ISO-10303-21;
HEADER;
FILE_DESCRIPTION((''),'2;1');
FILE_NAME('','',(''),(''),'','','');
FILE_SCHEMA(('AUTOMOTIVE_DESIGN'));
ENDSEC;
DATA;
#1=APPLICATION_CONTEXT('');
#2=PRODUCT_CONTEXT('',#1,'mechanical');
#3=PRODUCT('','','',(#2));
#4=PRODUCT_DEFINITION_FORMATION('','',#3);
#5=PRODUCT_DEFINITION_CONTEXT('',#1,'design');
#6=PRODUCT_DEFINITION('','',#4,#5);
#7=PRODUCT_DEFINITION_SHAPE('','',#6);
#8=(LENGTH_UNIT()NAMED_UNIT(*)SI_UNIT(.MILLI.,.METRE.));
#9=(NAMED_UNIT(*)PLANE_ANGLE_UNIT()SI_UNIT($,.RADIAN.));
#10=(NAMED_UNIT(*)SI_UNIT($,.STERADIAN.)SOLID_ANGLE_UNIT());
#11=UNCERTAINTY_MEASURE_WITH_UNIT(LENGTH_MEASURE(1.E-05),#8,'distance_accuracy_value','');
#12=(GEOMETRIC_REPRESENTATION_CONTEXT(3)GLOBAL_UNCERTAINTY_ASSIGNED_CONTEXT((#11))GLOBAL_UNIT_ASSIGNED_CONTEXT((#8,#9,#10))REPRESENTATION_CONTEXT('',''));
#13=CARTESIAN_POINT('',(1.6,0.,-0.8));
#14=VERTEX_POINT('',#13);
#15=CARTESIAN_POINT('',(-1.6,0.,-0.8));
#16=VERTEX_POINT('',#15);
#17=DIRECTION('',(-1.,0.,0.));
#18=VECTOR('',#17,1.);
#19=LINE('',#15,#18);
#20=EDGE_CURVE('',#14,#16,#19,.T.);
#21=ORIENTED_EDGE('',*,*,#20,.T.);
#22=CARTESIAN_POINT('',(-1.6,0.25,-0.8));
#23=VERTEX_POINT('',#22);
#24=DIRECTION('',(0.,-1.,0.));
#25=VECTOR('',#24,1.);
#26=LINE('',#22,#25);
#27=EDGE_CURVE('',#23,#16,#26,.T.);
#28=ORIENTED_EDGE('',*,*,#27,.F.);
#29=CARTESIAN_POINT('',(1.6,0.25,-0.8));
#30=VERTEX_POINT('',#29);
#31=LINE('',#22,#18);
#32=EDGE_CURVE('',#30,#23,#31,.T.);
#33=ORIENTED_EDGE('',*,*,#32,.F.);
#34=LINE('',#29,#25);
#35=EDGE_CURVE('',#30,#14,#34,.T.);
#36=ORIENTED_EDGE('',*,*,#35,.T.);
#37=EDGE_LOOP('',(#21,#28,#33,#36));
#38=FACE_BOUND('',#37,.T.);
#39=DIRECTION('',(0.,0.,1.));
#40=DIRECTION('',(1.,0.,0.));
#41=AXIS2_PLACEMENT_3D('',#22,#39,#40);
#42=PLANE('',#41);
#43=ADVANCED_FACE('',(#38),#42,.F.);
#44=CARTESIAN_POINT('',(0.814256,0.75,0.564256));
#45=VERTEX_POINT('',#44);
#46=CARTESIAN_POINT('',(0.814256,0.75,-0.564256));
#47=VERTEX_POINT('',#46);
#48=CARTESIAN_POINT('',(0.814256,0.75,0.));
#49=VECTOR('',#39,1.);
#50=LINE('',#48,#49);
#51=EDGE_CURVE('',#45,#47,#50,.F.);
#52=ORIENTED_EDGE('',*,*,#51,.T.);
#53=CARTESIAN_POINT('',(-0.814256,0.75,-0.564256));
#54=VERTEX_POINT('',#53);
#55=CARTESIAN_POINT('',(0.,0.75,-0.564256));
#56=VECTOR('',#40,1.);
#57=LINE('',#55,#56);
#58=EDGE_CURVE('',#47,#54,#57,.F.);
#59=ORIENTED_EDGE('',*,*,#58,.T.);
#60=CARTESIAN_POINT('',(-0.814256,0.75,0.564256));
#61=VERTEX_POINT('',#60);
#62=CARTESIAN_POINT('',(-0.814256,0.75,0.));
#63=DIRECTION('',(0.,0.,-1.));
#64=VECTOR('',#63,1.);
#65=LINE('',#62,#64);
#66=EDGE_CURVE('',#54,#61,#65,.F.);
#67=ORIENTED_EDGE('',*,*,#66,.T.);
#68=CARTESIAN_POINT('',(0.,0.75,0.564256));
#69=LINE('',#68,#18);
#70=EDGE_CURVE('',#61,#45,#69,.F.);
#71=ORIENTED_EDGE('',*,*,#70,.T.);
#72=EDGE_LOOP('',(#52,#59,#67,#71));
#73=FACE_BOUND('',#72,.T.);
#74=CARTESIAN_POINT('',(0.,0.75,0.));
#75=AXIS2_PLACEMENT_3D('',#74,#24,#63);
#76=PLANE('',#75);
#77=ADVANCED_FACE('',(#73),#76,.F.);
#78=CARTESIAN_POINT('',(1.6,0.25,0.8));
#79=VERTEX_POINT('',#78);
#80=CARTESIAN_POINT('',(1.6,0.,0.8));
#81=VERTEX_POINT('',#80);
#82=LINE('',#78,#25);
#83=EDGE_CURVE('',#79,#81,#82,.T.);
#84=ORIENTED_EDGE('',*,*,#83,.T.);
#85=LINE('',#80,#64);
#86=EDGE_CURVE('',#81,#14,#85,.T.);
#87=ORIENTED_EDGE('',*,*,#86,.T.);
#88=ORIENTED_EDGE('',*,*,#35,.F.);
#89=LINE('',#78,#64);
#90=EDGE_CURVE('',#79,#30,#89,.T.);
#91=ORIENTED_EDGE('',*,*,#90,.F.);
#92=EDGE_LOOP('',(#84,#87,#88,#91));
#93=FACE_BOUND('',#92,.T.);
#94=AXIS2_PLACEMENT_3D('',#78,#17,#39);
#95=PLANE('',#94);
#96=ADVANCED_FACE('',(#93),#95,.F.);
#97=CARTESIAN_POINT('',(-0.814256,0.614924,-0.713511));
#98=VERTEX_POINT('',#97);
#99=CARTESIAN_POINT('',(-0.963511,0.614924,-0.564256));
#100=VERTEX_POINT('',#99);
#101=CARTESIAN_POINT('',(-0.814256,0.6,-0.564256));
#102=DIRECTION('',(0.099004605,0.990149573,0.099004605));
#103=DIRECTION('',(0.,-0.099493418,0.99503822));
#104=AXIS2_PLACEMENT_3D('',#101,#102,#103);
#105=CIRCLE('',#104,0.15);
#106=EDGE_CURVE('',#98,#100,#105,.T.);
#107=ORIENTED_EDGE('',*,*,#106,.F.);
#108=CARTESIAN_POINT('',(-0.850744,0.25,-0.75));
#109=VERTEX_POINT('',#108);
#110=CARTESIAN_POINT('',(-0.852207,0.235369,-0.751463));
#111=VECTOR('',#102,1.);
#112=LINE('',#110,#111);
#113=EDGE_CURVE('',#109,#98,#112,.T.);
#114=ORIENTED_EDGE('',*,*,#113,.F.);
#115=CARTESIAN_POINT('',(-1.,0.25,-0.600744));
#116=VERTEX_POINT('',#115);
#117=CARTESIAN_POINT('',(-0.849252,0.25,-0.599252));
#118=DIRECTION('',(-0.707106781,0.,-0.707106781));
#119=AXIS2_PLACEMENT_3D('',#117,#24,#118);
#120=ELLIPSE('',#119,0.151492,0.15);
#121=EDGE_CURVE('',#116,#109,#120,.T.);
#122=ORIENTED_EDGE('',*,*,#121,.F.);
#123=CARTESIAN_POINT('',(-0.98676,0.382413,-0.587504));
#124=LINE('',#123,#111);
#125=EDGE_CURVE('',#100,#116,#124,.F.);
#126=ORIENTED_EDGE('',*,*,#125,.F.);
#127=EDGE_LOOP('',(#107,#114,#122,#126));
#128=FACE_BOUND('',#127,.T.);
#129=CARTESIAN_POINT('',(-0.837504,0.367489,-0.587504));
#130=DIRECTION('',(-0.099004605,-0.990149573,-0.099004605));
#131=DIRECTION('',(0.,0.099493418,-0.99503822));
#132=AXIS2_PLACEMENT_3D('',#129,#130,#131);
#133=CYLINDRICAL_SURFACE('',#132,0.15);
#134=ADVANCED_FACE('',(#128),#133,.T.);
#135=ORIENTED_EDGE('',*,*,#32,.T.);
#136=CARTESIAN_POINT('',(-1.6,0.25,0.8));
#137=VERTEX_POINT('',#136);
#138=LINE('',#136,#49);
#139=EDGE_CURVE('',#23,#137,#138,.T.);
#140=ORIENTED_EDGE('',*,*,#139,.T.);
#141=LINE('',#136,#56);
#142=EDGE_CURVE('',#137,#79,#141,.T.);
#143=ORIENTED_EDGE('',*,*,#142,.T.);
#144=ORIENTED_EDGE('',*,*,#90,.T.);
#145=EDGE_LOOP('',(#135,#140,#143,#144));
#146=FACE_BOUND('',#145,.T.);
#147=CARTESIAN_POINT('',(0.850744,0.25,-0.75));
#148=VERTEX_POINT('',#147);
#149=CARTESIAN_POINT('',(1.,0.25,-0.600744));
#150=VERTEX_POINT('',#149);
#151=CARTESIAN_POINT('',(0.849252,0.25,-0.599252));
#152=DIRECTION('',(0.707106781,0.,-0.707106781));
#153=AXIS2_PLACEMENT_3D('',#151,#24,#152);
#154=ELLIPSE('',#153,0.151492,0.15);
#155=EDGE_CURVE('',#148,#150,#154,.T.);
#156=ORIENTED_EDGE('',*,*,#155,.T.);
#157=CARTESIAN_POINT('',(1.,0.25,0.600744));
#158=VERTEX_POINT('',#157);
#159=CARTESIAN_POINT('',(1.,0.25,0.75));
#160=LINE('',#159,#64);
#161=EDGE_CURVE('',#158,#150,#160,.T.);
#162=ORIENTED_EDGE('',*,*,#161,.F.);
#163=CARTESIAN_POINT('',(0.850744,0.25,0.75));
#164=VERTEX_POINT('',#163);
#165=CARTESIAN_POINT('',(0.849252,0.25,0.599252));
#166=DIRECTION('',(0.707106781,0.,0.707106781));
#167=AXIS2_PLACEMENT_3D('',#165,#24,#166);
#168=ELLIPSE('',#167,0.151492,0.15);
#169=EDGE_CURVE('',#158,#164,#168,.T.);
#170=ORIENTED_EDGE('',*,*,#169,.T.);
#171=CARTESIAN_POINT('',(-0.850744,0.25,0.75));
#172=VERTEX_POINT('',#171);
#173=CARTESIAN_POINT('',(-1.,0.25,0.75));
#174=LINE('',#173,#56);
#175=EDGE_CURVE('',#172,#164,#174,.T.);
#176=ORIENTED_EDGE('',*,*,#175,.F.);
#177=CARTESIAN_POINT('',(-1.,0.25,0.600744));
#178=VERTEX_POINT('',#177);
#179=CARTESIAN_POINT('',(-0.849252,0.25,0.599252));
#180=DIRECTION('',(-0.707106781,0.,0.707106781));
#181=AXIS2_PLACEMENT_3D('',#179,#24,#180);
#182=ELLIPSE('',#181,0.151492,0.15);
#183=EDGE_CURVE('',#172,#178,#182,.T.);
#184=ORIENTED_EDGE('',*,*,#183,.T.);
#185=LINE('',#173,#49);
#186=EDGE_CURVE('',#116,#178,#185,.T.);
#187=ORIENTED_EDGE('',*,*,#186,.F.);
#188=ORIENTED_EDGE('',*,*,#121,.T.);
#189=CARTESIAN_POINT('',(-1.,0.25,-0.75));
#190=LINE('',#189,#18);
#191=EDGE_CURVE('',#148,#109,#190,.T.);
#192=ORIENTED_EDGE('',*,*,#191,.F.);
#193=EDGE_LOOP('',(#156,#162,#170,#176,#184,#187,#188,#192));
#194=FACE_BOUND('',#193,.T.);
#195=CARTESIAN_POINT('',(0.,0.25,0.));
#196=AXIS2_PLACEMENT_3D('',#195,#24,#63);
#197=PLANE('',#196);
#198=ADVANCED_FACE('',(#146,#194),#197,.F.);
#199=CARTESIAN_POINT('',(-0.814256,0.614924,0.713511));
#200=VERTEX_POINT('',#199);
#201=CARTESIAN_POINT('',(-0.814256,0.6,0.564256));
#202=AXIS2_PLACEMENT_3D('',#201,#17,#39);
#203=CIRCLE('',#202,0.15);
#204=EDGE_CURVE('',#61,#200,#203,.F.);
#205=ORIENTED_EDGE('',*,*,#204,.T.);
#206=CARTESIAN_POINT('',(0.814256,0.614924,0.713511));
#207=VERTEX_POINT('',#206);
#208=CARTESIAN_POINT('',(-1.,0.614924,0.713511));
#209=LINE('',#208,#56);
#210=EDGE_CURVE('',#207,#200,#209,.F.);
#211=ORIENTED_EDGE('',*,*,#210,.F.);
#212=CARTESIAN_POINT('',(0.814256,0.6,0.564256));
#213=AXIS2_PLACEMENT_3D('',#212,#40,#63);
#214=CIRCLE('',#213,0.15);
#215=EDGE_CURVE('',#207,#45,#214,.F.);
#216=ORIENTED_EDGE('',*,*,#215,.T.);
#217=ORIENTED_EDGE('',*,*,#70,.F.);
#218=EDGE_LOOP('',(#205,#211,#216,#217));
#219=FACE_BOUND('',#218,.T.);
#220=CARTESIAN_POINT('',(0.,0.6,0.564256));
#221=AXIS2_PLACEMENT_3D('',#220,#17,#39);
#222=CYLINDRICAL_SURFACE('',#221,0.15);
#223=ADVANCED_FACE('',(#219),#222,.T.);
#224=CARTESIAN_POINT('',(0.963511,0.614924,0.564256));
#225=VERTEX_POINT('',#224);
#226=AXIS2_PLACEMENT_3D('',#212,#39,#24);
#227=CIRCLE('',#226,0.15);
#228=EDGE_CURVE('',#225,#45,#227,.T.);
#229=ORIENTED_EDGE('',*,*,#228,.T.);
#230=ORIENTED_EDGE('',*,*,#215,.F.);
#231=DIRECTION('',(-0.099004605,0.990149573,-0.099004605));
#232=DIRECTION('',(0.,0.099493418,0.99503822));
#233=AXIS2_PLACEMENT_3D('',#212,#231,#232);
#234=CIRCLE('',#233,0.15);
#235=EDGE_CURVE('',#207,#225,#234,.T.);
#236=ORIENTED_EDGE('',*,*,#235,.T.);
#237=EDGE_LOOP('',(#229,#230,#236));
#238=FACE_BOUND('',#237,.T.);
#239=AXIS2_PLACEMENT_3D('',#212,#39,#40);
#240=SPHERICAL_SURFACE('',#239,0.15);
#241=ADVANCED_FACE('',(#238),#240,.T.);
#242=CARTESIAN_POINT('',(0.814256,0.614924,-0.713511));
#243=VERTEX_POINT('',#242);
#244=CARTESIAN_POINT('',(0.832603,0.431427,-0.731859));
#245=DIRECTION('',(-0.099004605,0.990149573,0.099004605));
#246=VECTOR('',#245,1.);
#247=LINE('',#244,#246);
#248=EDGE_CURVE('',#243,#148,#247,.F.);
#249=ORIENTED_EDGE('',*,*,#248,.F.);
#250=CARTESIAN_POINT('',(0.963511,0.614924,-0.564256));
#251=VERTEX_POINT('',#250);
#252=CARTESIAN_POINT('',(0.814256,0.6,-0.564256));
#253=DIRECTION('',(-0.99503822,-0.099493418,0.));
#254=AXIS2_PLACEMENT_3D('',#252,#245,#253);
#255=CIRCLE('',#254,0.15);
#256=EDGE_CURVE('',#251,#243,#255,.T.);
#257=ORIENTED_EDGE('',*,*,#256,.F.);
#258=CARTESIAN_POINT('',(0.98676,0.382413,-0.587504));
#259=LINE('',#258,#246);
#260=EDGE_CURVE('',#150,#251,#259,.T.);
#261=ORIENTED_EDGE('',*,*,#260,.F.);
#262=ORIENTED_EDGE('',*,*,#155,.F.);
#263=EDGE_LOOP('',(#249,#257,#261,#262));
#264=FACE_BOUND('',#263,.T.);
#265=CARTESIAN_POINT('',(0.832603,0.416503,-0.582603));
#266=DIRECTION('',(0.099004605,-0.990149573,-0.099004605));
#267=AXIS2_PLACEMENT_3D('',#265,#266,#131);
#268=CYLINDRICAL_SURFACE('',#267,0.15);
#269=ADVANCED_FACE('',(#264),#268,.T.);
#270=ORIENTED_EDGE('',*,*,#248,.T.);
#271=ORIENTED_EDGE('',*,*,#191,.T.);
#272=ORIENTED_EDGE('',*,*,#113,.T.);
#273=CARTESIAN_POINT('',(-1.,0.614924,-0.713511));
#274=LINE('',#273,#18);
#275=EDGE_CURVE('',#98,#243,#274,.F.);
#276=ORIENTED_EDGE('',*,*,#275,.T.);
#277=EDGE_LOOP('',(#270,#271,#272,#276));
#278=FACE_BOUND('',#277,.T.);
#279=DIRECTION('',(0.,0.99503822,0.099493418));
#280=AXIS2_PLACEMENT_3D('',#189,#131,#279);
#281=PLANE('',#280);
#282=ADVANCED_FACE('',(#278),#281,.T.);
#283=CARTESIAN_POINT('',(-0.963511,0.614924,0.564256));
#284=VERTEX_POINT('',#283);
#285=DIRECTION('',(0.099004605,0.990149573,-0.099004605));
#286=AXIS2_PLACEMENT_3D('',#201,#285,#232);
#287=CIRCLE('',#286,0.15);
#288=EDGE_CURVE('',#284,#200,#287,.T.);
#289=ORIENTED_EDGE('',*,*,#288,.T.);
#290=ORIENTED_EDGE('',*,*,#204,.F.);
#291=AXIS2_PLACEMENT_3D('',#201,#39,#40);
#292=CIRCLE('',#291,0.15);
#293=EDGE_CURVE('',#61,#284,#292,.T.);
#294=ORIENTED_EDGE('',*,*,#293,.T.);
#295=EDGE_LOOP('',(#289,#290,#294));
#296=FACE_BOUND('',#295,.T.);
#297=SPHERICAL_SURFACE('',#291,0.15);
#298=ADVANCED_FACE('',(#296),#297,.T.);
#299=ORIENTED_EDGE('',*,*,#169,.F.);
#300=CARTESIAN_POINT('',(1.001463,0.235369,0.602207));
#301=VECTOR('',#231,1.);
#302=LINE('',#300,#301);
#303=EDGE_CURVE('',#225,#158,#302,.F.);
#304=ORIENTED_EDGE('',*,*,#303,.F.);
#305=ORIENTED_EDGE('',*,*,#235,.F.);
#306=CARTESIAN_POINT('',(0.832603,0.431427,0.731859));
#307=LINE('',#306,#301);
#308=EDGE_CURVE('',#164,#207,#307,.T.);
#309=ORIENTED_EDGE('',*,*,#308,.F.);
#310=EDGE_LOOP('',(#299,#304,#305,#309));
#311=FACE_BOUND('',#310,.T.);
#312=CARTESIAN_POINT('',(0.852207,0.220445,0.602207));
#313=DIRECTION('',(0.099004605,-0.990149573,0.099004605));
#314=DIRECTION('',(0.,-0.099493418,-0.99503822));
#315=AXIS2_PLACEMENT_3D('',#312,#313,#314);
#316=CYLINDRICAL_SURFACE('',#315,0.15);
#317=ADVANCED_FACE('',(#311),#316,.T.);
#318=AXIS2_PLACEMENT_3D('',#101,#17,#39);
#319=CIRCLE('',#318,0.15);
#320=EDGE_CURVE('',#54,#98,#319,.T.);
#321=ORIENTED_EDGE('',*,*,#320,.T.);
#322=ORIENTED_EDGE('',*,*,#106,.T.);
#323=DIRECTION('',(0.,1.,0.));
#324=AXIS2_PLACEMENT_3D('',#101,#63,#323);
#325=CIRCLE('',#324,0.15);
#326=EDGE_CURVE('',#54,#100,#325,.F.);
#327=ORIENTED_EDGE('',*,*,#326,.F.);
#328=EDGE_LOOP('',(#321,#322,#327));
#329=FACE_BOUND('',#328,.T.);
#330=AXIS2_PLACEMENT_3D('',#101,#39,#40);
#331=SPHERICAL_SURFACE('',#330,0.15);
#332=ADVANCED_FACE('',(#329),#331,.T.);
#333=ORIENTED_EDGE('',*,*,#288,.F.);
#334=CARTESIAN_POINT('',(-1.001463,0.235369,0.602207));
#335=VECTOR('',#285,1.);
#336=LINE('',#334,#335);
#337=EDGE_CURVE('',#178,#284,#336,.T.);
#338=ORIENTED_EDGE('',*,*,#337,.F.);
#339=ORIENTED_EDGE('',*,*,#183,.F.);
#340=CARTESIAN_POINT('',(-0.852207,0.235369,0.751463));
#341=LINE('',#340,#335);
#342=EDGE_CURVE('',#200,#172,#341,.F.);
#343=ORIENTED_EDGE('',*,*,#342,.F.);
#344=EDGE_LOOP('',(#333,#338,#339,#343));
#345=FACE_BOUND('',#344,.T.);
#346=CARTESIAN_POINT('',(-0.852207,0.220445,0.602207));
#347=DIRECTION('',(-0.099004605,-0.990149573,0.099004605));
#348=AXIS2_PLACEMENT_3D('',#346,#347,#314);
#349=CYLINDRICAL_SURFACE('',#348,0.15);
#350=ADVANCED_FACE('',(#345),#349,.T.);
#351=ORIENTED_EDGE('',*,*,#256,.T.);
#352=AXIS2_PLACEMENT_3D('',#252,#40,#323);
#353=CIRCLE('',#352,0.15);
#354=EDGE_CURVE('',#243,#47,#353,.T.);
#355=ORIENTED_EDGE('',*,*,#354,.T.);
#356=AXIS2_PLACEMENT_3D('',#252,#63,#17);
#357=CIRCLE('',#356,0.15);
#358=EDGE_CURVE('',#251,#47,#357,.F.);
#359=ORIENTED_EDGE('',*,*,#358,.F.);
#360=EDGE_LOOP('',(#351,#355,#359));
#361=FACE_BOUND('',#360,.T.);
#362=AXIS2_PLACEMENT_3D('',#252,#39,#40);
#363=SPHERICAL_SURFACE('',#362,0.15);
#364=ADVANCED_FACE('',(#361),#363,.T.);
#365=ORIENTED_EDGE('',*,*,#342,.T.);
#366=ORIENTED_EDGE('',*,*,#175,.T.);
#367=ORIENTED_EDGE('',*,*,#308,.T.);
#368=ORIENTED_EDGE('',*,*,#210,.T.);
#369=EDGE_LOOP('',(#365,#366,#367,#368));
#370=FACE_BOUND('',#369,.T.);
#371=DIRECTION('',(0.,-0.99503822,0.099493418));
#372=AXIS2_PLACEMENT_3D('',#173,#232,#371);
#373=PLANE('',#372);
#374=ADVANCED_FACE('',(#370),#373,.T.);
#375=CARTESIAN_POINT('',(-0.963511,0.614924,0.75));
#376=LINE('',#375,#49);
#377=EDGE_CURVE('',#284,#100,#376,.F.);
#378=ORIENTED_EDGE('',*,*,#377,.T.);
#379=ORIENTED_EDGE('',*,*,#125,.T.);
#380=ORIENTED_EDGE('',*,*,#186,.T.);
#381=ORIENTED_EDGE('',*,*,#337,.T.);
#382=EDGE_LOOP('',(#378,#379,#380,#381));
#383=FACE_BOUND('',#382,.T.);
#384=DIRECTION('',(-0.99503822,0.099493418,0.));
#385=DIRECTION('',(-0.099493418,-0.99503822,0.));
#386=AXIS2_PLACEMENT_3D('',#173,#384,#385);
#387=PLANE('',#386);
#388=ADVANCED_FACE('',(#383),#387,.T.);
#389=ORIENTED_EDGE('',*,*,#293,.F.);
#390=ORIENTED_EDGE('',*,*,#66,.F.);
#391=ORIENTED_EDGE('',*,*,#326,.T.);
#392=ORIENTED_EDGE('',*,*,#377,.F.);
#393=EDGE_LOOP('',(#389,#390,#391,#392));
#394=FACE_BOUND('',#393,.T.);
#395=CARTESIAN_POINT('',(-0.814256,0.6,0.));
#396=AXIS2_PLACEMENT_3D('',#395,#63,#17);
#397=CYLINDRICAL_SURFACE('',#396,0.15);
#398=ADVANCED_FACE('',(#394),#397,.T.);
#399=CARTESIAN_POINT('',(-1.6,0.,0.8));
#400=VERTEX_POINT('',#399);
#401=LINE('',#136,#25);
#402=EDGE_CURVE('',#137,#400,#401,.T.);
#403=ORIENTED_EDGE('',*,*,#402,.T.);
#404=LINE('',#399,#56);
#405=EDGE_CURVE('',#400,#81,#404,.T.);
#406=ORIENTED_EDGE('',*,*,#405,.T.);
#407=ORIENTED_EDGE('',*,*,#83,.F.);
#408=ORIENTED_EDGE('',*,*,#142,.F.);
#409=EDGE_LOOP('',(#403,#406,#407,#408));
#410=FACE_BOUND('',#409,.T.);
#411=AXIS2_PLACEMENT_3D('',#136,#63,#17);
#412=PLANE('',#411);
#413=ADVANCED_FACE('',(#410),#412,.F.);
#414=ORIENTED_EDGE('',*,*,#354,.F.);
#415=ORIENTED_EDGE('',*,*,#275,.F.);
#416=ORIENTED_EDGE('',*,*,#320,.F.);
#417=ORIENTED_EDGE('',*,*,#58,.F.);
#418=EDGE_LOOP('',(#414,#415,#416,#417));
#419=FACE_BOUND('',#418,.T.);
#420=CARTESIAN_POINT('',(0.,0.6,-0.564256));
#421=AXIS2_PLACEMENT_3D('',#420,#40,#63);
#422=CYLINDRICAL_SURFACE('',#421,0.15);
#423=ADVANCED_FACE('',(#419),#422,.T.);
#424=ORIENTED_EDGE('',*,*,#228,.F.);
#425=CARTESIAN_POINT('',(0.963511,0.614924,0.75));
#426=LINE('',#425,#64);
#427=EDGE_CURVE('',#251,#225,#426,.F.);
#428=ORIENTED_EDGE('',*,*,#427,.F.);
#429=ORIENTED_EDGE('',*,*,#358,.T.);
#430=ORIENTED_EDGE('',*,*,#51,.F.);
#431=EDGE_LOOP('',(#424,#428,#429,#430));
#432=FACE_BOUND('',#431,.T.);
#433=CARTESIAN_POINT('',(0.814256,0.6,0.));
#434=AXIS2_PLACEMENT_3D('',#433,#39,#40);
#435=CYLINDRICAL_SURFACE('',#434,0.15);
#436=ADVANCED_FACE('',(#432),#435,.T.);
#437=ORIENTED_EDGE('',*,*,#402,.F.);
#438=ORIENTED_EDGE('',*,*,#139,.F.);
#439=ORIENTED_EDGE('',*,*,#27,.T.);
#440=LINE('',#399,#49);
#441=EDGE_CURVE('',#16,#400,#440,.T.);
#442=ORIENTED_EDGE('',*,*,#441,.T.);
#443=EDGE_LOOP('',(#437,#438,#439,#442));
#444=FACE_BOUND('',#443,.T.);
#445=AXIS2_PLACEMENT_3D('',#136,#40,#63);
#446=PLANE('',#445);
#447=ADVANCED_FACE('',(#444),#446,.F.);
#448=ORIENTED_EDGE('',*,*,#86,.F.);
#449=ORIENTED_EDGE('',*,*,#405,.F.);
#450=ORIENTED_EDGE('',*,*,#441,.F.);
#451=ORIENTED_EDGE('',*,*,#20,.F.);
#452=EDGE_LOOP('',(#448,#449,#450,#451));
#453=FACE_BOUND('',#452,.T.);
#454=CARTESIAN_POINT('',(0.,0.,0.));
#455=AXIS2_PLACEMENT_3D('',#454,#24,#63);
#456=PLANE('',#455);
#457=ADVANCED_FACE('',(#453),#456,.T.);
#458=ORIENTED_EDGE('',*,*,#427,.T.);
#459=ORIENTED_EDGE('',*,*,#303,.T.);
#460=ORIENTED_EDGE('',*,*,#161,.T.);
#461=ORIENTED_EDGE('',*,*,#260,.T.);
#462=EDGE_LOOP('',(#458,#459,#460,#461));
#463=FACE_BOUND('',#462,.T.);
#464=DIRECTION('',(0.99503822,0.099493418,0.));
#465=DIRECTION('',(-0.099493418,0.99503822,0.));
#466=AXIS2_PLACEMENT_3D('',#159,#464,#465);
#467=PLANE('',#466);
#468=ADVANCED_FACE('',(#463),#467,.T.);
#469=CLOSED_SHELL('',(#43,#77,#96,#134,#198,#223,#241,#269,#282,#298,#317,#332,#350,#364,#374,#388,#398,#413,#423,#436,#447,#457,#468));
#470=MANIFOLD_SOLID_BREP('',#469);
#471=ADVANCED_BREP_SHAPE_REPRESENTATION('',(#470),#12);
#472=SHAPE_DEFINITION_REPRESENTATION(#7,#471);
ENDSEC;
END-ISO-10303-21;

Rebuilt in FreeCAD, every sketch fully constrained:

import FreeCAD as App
import Part
import Sketcher

V = App.Vector


def edges_at(feature, points):
    """Names of the edges that pass closest to the given points."""
    edges = feature.Shape.Edges
    near = lambda p: min(range(len(edges)), key=lambda i: edges[i].distToShape(Part.Vertex(*p))[0])
    return sorted({f"Edge{near(p) + 1}" for p in points})

doc = App.newDocument("Part")
body = doc.addObject("PartDesign::Body", "Body")

# Sketch on XZ plane
sketch1 = body.newObject("Sketcher::SketchObject", "Sketch")
sketch1.AttachmentSupport = (doc.getObject("XZ_Plane"), [""])
sketch1.MapMode = "FlatFace"
sketch1.addGeometry(Part.LineSegment(V(-1.6, -0.8, 0), V(-1.6, 0.8, 0)), False)
sketch1.addGeometry(Part.LineSegment(V(-1.6, 0.8, 0), V(1.6, 0.8, 0)), False)
sketch1.addGeometry(Part.LineSegment(V(1.6, 0.8, 0), V(1.6, -0.8, 0)), False)
sketch1.addGeometry(Part.LineSegment(V(1.6, -0.8, 0), V(-1.6, -0.8, 0)), False)
sketch1.addConstraint(Sketcher.Constraint("Coincident", 0, 2, 1, 1))
sketch1.addConstraint(Sketcher.Constraint("Coincident", 1, 2, 2, 1))
sketch1.addConstraint(Sketcher.Constraint("Coincident", 2, 2, 3, 1))
sketch1.addConstraint(Sketcher.Constraint("Coincident", 3, 2, 0, 1))
sketch1.addConstraint(Sketcher.Constraint("Vertical", 0))
sketch1.addConstraint(Sketcher.Constraint("Horizontal", 1))
sketch1.addConstraint(Sketcher.Constraint("Vertical", 2))
sketch1.addConstraint(Sketcher.Constraint("Horizontal", 3))
sketch1.addConstraint(Sketcher.Constraint("Symmetric", 0, 2, 2, 2, -1, 1))
sketch1.addConstraint(Sketcher.Constraint("DistanceX", 1, 1, 1, 2, 3.2))
sketch1.addConstraint(Sketcher.Constraint("DistanceY", 0, 1, 0, 2, 1.6))
pad1 = body.newObject("PartDesign::Pad", "Pad")
pad1.Profile = sketch1
pad1.Length = 0.25
pad1.Reversed = True

# Sketch on XZ plane
sketch2 = body.newObject("Sketcher::SketchObject", "Sketch001")
sketch2.AttachmentSupport = (doc.getObject("XZ_Plane"), [""])
sketch2.MapMode = "FlatFace"
sketch2.AttachmentOffset = App.Placement(V(0, 0, -0.25), App.Rotation())
sketch2.addGeometry(Part.LineSegment(V(-1, -0.8, 0), V(-1, 0.8, 0)), False)
sketch2.addGeometry(Part.LineSegment(V(-1, 0.8, 0), V(1, 0.8, 0)), False)
sketch2.addGeometry(Part.LineSegment(V(1, 0.8, 0), V(1, -0.8, 0)), False)
sketch2.addGeometry(Part.LineSegment(V(1, -0.8, 0), V(-1, -0.8, 0)), False)
sketch2.addConstraint(Sketcher.Constraint("Coincident", 0, 2, 1, 1))
sketch2.addConstraint(Sketcher.Constraint("Coincident", 1, 2, 2, 1))
sketch2.addConstraint(Sketcher.Constraint("Coincident", 2, 2, 3, 1))
sketch2.addConstraint(Sketcher.Constraint("Coincident", 3, 2, 0, 1))
sketch2.addConstraint(Sketcher.Constraint("Vertical", 0))
sketch2.addConstraint(Sketcher.Constraint("Horizontal", 1))
sketch2.addConstraint(Sketcher.Constraint("Vertical", 2))
sketch2.addConstraint(Sketcher.Constraint("Horizontal", 3))
sketch2.addConstraint(Sketcher.Constraint("Symmetric", 0, 2, 2, 2, -1, 1))
sketch2.addConstraint(Sketcher.Constraint("DistanceX", 1, 1, 1, 2, 2.0))
sketch2.addConstraint(Sketcher.Constraint("DistanceY", 0, 1, 0, 2, 1.5))
pad2 = body.newObject("PartDesign::Pad", "Pad001")
pad2.Profile = sketch2
pad2.Length = 0.5
pad2.Reversed = True
pad2.TaperAngle = -5.71
doc.recompute()

fillet = body.newObject("PartDesign::Fillet", "Fillet")
fillet.Base = (pad2, edges_at(pad2, [
    (0.975, 0.5, 0.725),
    (0.975, 0.5, -0.725),
    (-0.975, 0.5, -0.725),
    (-0.975, 0.5, 0.725),
    (0.95, 0.75, 0),
    (0, 0.75, -0.7),
    (-0.95, 0.75, 0),
    (0, 0.75, 0.7),
]))
fillet.Radius = 0.15

doc.recompute()
